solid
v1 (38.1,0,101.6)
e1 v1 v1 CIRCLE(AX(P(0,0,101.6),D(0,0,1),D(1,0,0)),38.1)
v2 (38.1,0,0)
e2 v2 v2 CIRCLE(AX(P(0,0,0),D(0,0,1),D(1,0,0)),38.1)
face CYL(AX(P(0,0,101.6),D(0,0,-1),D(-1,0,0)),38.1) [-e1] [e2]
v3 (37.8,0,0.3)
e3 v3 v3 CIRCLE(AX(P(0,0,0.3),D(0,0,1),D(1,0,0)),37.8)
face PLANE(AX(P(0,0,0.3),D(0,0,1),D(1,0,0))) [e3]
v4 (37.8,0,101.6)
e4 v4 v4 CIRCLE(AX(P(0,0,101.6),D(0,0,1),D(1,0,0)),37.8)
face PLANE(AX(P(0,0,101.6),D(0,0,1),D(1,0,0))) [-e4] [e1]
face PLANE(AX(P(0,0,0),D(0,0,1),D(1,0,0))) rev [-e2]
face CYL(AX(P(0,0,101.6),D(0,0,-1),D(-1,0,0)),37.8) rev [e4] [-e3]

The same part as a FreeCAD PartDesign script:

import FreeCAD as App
import Part
import Sketcher
Q = App.Units.Quantity


def faces_at(feature, points):
    """Names of the faces that lie closest to the given points."""
    faces = feature.Shape.Faces
    near = lambda p: min(range(len(faces)), key=lambda i: faces[i].distToShape(Part.Vertex(*p))[0])
    return sorted({f"Face{near(p) + 1}" for p in points})

doc = App.newDocument("Part")
body = doc.addObject("PartDesign::Body", "Body")

sketch1 = body.newObject("Sketcher::SketchObject", "Sketch")
sketch1.AttachmentSupport = (doc.getObject("XY_Plane"), [""])
sketch1.MapMode = "FlatFace"
sketch1.addGeometry(Part.Circle(App.Vector(0, 0, 0), App.Vector(0, 0, 1), 38), False)
sketch1.addConstraint([
    Sketcher.Constraint("Coincident", 0, 3, -1, 1),
    Sketcher.Constraint("Diameter", 0, Q("3 in")),
])
pad1 = body.newObject("PartDesign::Pad", "Pad")
pad1.Profile = sketch1
pad1.Length = Q("4 in")
doc.recompute()

thickness = body.newObject("PartDesign::Thickness", "Thickness")
thickness.Base = (pad1, faces_at(pad1, [(0, 0, 101.6)]))
thickness.Value = 0.3
thickness.Reversed = True
thickness.Join = "Intersection"

doc.recompute()
